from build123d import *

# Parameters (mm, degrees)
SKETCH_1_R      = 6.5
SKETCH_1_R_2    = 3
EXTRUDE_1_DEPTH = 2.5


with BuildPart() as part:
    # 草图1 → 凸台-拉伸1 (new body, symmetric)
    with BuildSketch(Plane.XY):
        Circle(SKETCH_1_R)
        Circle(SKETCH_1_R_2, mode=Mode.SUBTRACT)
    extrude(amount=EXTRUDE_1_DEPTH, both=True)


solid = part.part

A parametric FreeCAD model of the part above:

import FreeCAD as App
import Part
import Sketcher
Q = App.Units.Quantity

doc = App.newDocument("Part")
params = doc.addObject("Spreadsheet::Sheet", "Params")
for row, (alias, value) in enumerate([
    ("sketch1_diameter", "13 mm"),
    ("sketch1_diameter2", "6 mm"),
    ("pad1_length", "5 mm"),
], start=1):
    params.set(f"A{row}", alias)
    params.set(f"B{row}", "=" + value)
    params.setAlias(f"B{row}", alias)

body = doc.addObject("PartDesign::Body", "Body")

# Sketch on XY plane
sketch1 = body.newObject("Sketcher::SketchObject", "Sketch")
sketch1.AttachmentSupport = (doc.getObject("XY_Plane"), [""])
sketch1.MapMode = "FlatFace"
sketch1.addGeometry([
    Part.Circle(App.Vector(0, 0, 0), App.Vector(0, 0, 1), 6.5),
    Part.Circle(App.Vector(0, 0, 0), App.Vector(0, 0, 1), 3),
], False)
sketch1.addConstraint([
    Sketcher.Constraint("Coincident", 0, 3, -1, 1),
    Sketcher.Constraint("Coincident", 1, 3, -1, 1),
    Sketcher.Constraint("Diameter", 0, Q("13 mm")),
    Sketcher.Constraint("Diameter", 1, Q("6 mm")),
])
sketch1.setExpression("Constraints[2]", "Params.sketch1_diameter")
sketch1.setExpression("Constraints[3]", "Params.sketch1_diameter2")
pad1 = body.newObject("PartDesign::Pad", "Pad")
pad1.Profile = sketch1
pad1.setExpression("Length", "Params.pad1_length")
pad1.Midplane = True

doc.recompute()
